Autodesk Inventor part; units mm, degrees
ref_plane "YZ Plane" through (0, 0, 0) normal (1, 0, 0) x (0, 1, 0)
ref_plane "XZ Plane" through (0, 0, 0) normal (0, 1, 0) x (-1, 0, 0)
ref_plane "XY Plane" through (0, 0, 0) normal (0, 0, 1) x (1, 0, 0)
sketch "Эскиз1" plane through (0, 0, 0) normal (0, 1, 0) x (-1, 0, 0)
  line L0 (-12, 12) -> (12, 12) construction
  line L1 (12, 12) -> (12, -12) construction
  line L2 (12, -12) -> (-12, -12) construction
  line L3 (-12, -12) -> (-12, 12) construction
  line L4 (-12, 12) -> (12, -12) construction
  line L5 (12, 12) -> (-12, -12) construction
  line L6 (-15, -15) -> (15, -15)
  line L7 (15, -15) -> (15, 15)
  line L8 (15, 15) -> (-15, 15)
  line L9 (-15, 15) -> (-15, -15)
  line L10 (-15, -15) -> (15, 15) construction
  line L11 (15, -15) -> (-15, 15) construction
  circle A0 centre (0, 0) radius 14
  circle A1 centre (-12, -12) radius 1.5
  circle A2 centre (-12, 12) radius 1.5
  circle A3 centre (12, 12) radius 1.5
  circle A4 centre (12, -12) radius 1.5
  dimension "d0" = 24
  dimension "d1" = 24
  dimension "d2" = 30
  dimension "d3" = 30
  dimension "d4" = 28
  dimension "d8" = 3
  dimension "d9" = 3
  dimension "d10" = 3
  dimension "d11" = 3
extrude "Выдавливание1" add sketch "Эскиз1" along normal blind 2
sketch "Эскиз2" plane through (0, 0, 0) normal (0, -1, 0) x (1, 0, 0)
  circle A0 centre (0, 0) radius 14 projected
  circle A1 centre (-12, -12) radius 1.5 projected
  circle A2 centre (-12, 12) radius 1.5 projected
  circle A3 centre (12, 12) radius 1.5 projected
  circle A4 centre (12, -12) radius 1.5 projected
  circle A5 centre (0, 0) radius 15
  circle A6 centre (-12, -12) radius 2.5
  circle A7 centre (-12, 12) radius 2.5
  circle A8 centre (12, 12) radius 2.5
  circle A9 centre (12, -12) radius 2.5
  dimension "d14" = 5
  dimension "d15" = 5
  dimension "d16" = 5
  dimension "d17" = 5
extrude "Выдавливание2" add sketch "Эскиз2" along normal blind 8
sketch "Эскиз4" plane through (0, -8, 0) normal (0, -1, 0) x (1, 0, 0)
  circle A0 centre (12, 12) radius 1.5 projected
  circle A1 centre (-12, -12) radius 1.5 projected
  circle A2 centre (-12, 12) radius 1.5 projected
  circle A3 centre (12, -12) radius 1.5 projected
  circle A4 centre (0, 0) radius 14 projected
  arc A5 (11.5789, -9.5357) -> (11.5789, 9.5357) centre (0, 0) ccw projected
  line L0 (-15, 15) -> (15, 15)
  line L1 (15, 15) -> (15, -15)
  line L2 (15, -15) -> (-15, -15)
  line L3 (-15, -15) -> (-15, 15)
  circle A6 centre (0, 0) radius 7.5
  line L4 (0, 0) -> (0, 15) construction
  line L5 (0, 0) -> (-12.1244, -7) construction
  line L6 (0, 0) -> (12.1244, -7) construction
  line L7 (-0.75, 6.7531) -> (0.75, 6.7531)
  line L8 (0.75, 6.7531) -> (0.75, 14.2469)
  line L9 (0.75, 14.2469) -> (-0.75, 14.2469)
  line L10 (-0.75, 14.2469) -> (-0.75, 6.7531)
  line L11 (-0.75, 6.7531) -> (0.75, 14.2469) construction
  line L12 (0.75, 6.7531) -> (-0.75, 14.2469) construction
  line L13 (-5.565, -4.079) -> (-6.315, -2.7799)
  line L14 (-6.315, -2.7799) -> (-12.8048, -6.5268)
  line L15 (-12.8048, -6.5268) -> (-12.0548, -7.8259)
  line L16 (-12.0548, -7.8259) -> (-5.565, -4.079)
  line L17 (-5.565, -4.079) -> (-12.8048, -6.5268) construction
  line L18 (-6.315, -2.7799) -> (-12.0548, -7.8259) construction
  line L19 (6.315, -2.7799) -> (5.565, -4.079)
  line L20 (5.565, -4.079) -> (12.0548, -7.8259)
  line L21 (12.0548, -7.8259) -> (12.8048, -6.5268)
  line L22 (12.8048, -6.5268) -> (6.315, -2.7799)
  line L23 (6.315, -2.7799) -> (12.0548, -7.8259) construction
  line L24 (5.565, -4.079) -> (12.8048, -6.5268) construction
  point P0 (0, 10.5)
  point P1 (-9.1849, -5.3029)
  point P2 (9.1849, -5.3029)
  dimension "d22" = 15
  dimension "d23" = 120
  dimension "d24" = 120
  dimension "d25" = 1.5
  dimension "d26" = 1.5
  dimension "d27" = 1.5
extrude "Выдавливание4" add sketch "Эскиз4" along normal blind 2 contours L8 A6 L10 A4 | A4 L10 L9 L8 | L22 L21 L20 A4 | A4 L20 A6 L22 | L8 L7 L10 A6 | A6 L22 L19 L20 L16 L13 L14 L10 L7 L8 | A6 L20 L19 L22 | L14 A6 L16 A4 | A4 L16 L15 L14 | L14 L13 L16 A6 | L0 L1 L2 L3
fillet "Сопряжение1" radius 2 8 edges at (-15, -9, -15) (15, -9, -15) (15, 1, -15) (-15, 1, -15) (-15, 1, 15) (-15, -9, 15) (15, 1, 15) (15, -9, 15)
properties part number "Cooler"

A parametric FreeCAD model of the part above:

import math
import FreeCAD as App
import Part
import Sketcher

V = App.Vector
Q = App.Units.Quantity


def edges_at(feature, points):
    """Names of the edges that pass closest to the given points."""
    edges = feature.Shape.Edges
    near = lambda p: min(range(len(edges)), key=lambda i: edges[i].distToShape(Part.Vertex(*p))[0])
    return sorted({f"Edge{near(p) + 1}" for p in points})


def add_polygon(sketch, points):
    """Adds a closed chain of lines whose ends are joined by coincident constraints."""
    first, n = sketch.GeometryCount, len(points)
    for a, b in zip(points, points[1:] + points[:1]):
        sketch.addGeometry(Part.LineSegment(App.Vector(*a, 0), App.Vector(*b, 0)), False)
    for i in range(n):
        sketch.addConstraint(Sketcher.Constraint("Coincident", first + i, 2, first + (i + 1) % n, 1))

doc = App.newDocument("Part")
body = doc.addObject("PartDesign::Body", "Body")

sketch1 = body.newObject("Sketcher::SketchObject", "Sketch")
sketch1.AttachmentSupport = (doc.getObject("XZ_Plane"), [""])
sketch1.MapMode = "FlatFace"
add_polygon(sketch1, [(15, 15), (15, -15), (-15, -15), (-15, 15)])
sketch1.addGeometry(Part.Circle(V(12, -12, 0), V(0, 0, 1), 1.5), False)
sketch1.addGeometry(Part.Circle(V(-12, -12, 0), V(0, 0, 1), 1.5), False)
sketch1.addGeometry(Part.Circle(V(12, 12, 0), V(0, 0, 1), 1.5), False)
sketch1.addGeometry(Part.Circle(V(0, 0, 0), V(0, 0, 1), 14), False)
sketch1.addGeometry(Part.Circle(V(-12, 12, 0), V(0, 0, 1), 1.5), False)
sketch1.addConstraint(Sketcher.Constraint("Vertical", 0))
sketch1.addConstraint(Sketcher.Constraint("Horizontal", 1))
sketch1.addConstraint(Sketcher.Constraint("Vertical", 2))
sketch1.addConstraint(Sketcher.Constraint("Horizontal", 3))
sketch1.addConstraint(Sketcher.Constraint("Coincident", 7, 3, -1, 1))
sketch1.addConstraint(Sketcher.Constraint("Equal", 4, 5))
sketch1.addConstraint(Sketcher.Constraint("Equal", 5, 6))
sketch1.addConstraint(Sketcher.Constraint("Equal", 6, 8))
sketch1.addConstraint(Sketcher.Constraint("Symmetric", 5, 3, 6, 3, -1, 1))
sketch1.addConstraint(Sketcher.Constraint("Symmetric", 4, 3, 8, 3, -1, 1))
sketch1.addConstraint(Sketcher.Constraint("Symmetric", 0, 2, 2, 2, -1, 1))
sketch1.addConstraint(Sketcher.Constraint("Symmetric", 4, 3, 5, 3, -2))
sketch1.addConstraint(Sketcher.Constraint("Equal", 3, 0))
sketch1.addConstraint(Sketcher.Constraint("Diameter", 4, 3.0))
sketch1.addConstraint(Sketcher.Constraint("Diameter", 7, 28.0))
sketch1.addConstraint(Sketcher.Constraint("DistanceX", 1, 2, 1, 1, 30.0))
sketch1.addConstraint(Sketcher.Constraint("DistanceX", 5, 3, 4, 3, 24.0))
sketch1.addConstraint(Sketcher.Constraint("DistanceY", 4, 3, 6, 3, 24.0))
pad1 = body.newObject("PartDesign::Pad", "Pad")
pad1.Profile = sketch1
pad1.Length = 2
pad1.Reversed = True

sketch2 = body.newObject("Sketcher::SketchObject", "Sketch001")
sketch2.AttachmentSupport = (doc.getObject("XZ_Plane"), [""])
sketch2.MapMode = "FlatFace"
sketch2.addGeometry(Part.ArcOfCircle(Part.Circle(V(0, 0, 0), V(0, 0, 1), 15), math.radians(-39.473049), math.radians(39.473049)), False)
sketch2.addGeometry(Part.ArcOfCircle(Part.Circle(V(12, 12, 0), V(0, 0, 1), 2.5), math.radians(-99.698164), math.radians(189.698164)), False)
sketch2.addGeometry(Part.ArcOfCircle(Part.Circle(V(0, 0, 0), V(0, 0, 1), 15), math.radians(50.526951), math.radians(129.473049)), False)
sketch2.addGeometry(Part.ArcOfCircle(Part.Circle(V(-12, 12, 0), V(0, 0, 1), 2.5), math.radians(-9.698164), math.radians(279.698164)), False)
sketch2.addGeometry(Part.ArcOfCircle(Part.Circle(V(0, 0, 0), V(0, 0, 1), 15), math.radians(140.526951), math.radians(219.473049)), False)
sketch2.addGeometry(Part.ArcOfCircle(Part.Circle(V(-12, -12, 0), V(0, 0, 1), 2.5), math.radians(80.301836), math.radians(369.698164)), False)
sketch2.addGeometry(Part.ArcOfCircle(Part.Circle(V(0, 0, 0), V(0, 0, 1), 15), math.radians(-129.473049), math.radians(-50.526951)), False)
sketch2.addGeometry(Part.ArcOfCircle(Part.Circle(V(12, -12, 0), V(0, 0, 1), 2.5), math.radians(170.301836), math.radians(459.698164)), False)
sketch2.addGeometry(Part.Circle(V(0, 0, 0), V(0, 0, 1), 14), False)
sketch2.addGeometry(Part.Circle(V(12, -12, 0), V(0, 0, 1), 1.5), False)
sketch2.addGeometry(Part.Circle(V(-12, -12, 0), V(0, 0, 1), 1.5), False)
sketch2.addGeometry(Part.Circle(V(-12, 12, 0), V(0, 0, 1), 1.5), False)
sketch2.addGeometry(Part.Circle(V(12, 12, 0), V(0, 0, 1), 1.5), False)
sketch2.addConstraint(Sketcher.Constraint("Coincident", 0, 2, 1, 1))
sketch2.addConstraint(Sketcher.Constraint("Coincident", 1, 2, 2, 1))
sketch2.addConstraint(Sketcher.Constraint("Coincident", 2, 2, 3, 1))
sketch2.addConstraint(Sketcher.Constraint("Coincident", 3, 2, 4, 1))
sketch2.addConstraint(Sketcher.Constraint("Coincident", 4, 2, 5, 1))
sketch2.addConstraint(Sketcher.Constraint("Coincident", 5, 2, 6, 1))
sketch2.addConstraint(Sketcher.Constraint("Coincident", 6, 2, 7, 1))
sketch2.addConstraint(Sketcher.Constraint("Coincident", 7, 2, 0, 1))
sketch2.addConstraint(Sketcher.Constraint("Coincident", 0, 3, -1, 1))
sketch2.addConstraint(Sketcher.Constraint("Coincident", 2, 3, -1, 1))
sketch2.addConstraint(Sketcher.Constraint("Coincident", 4, 3, -1, 1))
sketch2.addConstraint(Sketcher.Constraint("Coincident", 6, 3, -1, 1))
sketch2.addConstraint(Sketcher.Constraint("Coincident", 8, 3, -1, 1))
sketch2.addConstraint(Sketcher.Constraint("Coincident", 9, 3, 7, 3))
sketch2.addConstraint(Sketcher.Constraint("Coincident", 10, 3, 5, 3))
sketch2.addConstraint(Sketcher.Constraint("Coincident", 11, 3, 3, 3))
sketch2.addConstraint(Sketcher.Constraint("Coincident", 12, 3, 1, 3))
sketch2.addConstraint(Sketcher.Constraint("Equal", 0, 2))
sketch2.addConstraint(Sketcher.Constraint("Equal", 1, 3))
sketch2.addConstraint(Sketcher.Constraint("Equal", 2, 4))
sketch2.addConstraint(Sketcher.Constraint("Equal", 3, 5))
sketch2.addConstraint(Sketcher.Constraint("Equal", 4, 6))
sketch2.addConstraint(Sketcher.Constraint("Equal", 5, 7))
sketch2.addConstraint(Sketcher.Constraint("Equal", 9, 10))
sketch2.addConstraint(Sketcher.Constraint("Equal", 10, 11))
sketch2.addConstraint(Sketcher.Constraint("Equal", 11, 12))
sketch2.addConstraint(Sketcher.Constraint("Symmetric", 1, 3, 5, 3, -1, 1))
sketch2.addConstraint(Sketcher.Constraint("Symmetric", 3, 3, 7, 3, -1, 1))
sketch2.addConstraint(Sketcher.Constraint("Symmetric", 1, 3, 3, 3, -2))
sketch2.addConstraint(Sketcher.Constraint("Radius", 1, 2.5))
sketch2.addConstraint(Sketcher.Constraint("Diameter", 8, 28.0))
sketch2.addConstraint(Sketcher.Constraint("Diameter", 9, 3.0))
sketch2.addConstraint(Sketcher.Constraint("Radius", 0, 15.0))
sketch2.addConstraint(Sketcher.Constraint("DistanceX", -1, 1, 1, 3, 12.0))
sketch2.addConstraint(Sketcher.Constraint("DistanceY", -1, 1, 1, 3, 12.0))
pad2 = body.newObject("PartDesign::Pad", "Pad001")
pad2.Profile = sketch2
pad2.Length = 8

sketch3 = body.newObject("Sketcher::SketchObject", "Sketch002")
sketch3.AttachmentSupport = (doc.getObject("XZ_Plane"), [""])
sketch3.MapMode = "FlatFace"
sketch3.AttachmentOffset = App.Placement(V(0, 0, 8), App.Rotation())
add_polygon(sketch3, [(15, 15), (-15, 15), (-15, -15), (15, -15)])
sketch3.addGeometry(Part.LineSegment(V(0.75, 7.462406, 0), V(0.75, 13.979896, 0)), False)
sketch3.addGeometry(Part.ArcOfCircle(Part.Circle(V(0, 0, 0), V(0, 0, 1), 14), math.radians(-26.929007), math.radians(86.929113)), False)
sketch3.addGeometry(Part.LineSegment(V(12.481957, -6.340406, 0), V(6.837647, -3.081652, 0)), False)
sketch3.addGeometry(Part.ArcOfCircle(Part.Circle(V(0, 0, 0), V(0, 0, 1), 7.5), math.radians(-24.26056), math.radians(84.26083)), False)
sketch3.addGeometry(Part.LineSegment(V(-0.75, 13.979896, 0), V(-0.75, 7.462406, 0)), False)
sketch3.addGeometry(Part.ArcOfCircle(Part.Circle(V(0, 0, 0), V(0, 0, 1), 7.5), math.radians(95.73917), math.radians(204.26056)), False)
sketch3.addGeometry(Part.LineSegment(V(-6.837647, -3.081652, 0), V(-12.481957, -6.340406, 0)), False)
sketch3.addGeometry(Part.ArcOfCircle(Part.Circle(V(0, 0, 0), V(0, 0, 1), 14), math.radians(93.070887), math.radians(206.929007)), False)
sketch3.addGeometry(Part.ArcOfCircle(Part.Circle(V(0, 0, 0), V(0, 0, 1), 7.5), math.radians(-144.260688), math.radians(-35.739312)), False)
sketch3.addGeometry(Part.LineSegment(V(6.087622, -4.380737, 0), V(11.73193, -7.63949, 0)), False)
sketch3.addGeometry(Part.ArcOfCircle(Part.Circle(V(0, 0, 0), V(0, 0, 1), 14), math.radians(-146.929), math.radians(-33.071)), False)
sketch3.addGeometry(Part.LineSegment(V(-11.73193, -7.63949, 0), V(-6.087622, -4.380737, 0)), False)
sketch3.addGeometry(Part.Circle(V(-12, -12, 0), V(0, 0, 1), 1.5), False)
sketch3.addGeometry(Part.Circle(V(12, -12, 0), V(0, 0, 1), 1.5), False)
sketch3.addGeometry(Part.Circle(V(-12, 12, 0), V(0, 0, 1), 1.5), False)
sketch3.addGeometry(Part.Circle(V(12, 12, 0), V(0, 0, 1), 1.5), False)
sketch3.addConstraint(Sketcher.Constraint("Coincident", 4, 2, 5, 2))
sketch3.addConstraint(Sketcher.Constraint("Coincident", 5, 1, 6, 1))
sketch3.addConstraint(Sketcher.Constraint("Coincident", 6, 2, 7, 1))
sketch3.addConstraint(Sketcher.Constraint("Coincident", 7, 2, 4, 1))
sketch3.addConstraint(Sketcher.Constraint("Coincident", 8, 2, 9, 1))
sketch3.addConstraint(Sketcher.Constraint("Coincident", 9, 2, 10, 1))
sketch3.addConstraint(Sketcher.Constraint("Coincident", 10, 2, 11, 2))
sketch3.addConstraint(Sketcher.Constraint("Coincident", 11, 1, 8, 1))
sketch3.addConstraint(Sketcher.Constraint("Coincident", 12, 2, 13, 1))
sketch3.addConstraint(Sketcher.Constraint("Coincident", 13, 2, 14, 2))
sketch3.addConstraint(Sketcher.Constraint("Coincident", 14, 1, 15, 1))
sketch3.addConstraint(Sketcher.Constraint("Coincident", 15, 2, 12, 1))
sketch3.addConstraint(Sketcher.Constraint("Horizontal", 0))
sketch3.addConstraint(Sketcher.Constraint("Vertical", 1))
sketch3.addConstraint(Sketcher.Constraint("Horizontal", 2))
sketch3.addConstraint(Sketcher.Constraint("Vertical", 3))
sketch3.addConstraint(Sketcher.Constraint("Vertical", 4))
sketch3.addConstraint(Sketcher.Constraint("Vertical", 8))
sketch3.addConstraint(Sketcher.Constraint("Coincident", 5, 3, -1, 1))
sketch3.addConstraint(Sketcher.Constraint("Coincident", 7, 3, -1, 1))
sketch3.addConstraint(Sketcher.Constraint("Coincident", 9, 3, -1, 1))
sketch3.addConstraint(Sketcher.Constraint("Coincident", 11, 3, -1, 1))
sketch3.addConstraint(Sketcher.Constraint("Coincident", 12, 3, -1, 1))
sketch3.addConstraint(Sketcher.Constraint("Coincident", 14, 3, -1, 1))
sketch3.addConstraint(Sketcher.Constraint("Equal", 7, 9))
sketch3.addConstraint(Sketcher.Constraint("Equal", 5, 11))
sketch3.addConstraint(Sketcher.Constraint("Equal", 9, 12))
sketch3.addConstraint(Sketcher.Constraint("Equal", 11, 14))
sketch3.addConstraint(Sketcher.Constraint("Equal", 16, 17))
sketch3.addConstraint(Sketcher.Constraint("Equal", 17, 18))
sketch3.addConstraint(Sketcher.Constraint("Equal", 18, 19))
sketch3.addConstraint(Sketcher.Constraint("Symmetric", 17, 3, 18, 3, -1, 1))
sketch3.addConstraint(Sketcher.Constraint("Symmetric", 16, 3, 19, 3, -1, 1))
sketch3.addConstraint(Sketcher.Constraint("Symmetric", 0, 2, 2, 2, -1, 1))
sketch3.addConstraint(Sketcher.Constraint("Symmetric", 16, 3, 17, 3, -2))
sketch3.addConstraint(Sketcher.Constraint("Parallel", 6, 13))
sketch3.addConstraint(Sketcher.Constraint("Parallel", 10, 15))
sketch3.addConstraint(Sketcher.Constraint("Horizontal", 7, 2, 8, 2))
sketch3.addConstraint(Sketcher.Constraint("Horizontal", 6, 2, 9, 2))
sketch3.addConstraint(Sketcher.Constraint("Horizontal", 5, 1, 10, 2))
sketch3.addConstraint(Sketcher.Constraint("Horizontal", 13, 2, 14, 1))
sketch3.addConstraint(Sketcher.Constraint("Equal", 2, 1))
sketch3.addConstraint(Sketcher.Constraint("Equal", 10, 13))
sketch3.addConstraint(Sketcher.Constraint("Diameter", 16, 3.0))
sketch3.addConstraint(Sketcher.Constraint("Radius", 7, 7.5))
sketch3.addConstraint(Sketcher.Constraint("DistanceX", 0, 2, -1, 1, 15.0))
sketch3.addConstraint(Sketcher.Constraint("Radius", 5, 14.0))
sketch3.addConstraint(Sketcher.Constraint("DistanceX", 8, 2, 7, 2, 1.5))
sketch3.addConstraint(Sketcher.Constraint("Angle", 6, Q("150 deg")))
sketch3.addConstraint(Sketcher.Constraint("DistanceX", 16, 3, -1, 1, 12.0))
sketch3.addConstraint(Sketcher.Constraint("DistanceY", 16, 3, -1, 1, 12.0))
sketch3.addConstraint(Sketcher.Constraint("DistanceX", 12, 2, 6, 2, 0.75))
pad3 = body.newObject("PartDesign::Pad", "Pad002")
pad3.Profile = sketch3
pad3.Length = 2
doc.recompute()

fillet = body.newObject("PartDesign::Fillet", "Fillet")
fillet.Base = (pad3, edges_at(pad3, [
    (-15, -9, -15),
    (15, -9, -15),
    (15, 1, -15),
    (-15, 1, -15),
    (-15, 1, 15),
    (-15, -9, 15),
    (15, 1, 15),
    (15, -9, 15),
]))
fillet.Radius = 2

doc.recompute()
